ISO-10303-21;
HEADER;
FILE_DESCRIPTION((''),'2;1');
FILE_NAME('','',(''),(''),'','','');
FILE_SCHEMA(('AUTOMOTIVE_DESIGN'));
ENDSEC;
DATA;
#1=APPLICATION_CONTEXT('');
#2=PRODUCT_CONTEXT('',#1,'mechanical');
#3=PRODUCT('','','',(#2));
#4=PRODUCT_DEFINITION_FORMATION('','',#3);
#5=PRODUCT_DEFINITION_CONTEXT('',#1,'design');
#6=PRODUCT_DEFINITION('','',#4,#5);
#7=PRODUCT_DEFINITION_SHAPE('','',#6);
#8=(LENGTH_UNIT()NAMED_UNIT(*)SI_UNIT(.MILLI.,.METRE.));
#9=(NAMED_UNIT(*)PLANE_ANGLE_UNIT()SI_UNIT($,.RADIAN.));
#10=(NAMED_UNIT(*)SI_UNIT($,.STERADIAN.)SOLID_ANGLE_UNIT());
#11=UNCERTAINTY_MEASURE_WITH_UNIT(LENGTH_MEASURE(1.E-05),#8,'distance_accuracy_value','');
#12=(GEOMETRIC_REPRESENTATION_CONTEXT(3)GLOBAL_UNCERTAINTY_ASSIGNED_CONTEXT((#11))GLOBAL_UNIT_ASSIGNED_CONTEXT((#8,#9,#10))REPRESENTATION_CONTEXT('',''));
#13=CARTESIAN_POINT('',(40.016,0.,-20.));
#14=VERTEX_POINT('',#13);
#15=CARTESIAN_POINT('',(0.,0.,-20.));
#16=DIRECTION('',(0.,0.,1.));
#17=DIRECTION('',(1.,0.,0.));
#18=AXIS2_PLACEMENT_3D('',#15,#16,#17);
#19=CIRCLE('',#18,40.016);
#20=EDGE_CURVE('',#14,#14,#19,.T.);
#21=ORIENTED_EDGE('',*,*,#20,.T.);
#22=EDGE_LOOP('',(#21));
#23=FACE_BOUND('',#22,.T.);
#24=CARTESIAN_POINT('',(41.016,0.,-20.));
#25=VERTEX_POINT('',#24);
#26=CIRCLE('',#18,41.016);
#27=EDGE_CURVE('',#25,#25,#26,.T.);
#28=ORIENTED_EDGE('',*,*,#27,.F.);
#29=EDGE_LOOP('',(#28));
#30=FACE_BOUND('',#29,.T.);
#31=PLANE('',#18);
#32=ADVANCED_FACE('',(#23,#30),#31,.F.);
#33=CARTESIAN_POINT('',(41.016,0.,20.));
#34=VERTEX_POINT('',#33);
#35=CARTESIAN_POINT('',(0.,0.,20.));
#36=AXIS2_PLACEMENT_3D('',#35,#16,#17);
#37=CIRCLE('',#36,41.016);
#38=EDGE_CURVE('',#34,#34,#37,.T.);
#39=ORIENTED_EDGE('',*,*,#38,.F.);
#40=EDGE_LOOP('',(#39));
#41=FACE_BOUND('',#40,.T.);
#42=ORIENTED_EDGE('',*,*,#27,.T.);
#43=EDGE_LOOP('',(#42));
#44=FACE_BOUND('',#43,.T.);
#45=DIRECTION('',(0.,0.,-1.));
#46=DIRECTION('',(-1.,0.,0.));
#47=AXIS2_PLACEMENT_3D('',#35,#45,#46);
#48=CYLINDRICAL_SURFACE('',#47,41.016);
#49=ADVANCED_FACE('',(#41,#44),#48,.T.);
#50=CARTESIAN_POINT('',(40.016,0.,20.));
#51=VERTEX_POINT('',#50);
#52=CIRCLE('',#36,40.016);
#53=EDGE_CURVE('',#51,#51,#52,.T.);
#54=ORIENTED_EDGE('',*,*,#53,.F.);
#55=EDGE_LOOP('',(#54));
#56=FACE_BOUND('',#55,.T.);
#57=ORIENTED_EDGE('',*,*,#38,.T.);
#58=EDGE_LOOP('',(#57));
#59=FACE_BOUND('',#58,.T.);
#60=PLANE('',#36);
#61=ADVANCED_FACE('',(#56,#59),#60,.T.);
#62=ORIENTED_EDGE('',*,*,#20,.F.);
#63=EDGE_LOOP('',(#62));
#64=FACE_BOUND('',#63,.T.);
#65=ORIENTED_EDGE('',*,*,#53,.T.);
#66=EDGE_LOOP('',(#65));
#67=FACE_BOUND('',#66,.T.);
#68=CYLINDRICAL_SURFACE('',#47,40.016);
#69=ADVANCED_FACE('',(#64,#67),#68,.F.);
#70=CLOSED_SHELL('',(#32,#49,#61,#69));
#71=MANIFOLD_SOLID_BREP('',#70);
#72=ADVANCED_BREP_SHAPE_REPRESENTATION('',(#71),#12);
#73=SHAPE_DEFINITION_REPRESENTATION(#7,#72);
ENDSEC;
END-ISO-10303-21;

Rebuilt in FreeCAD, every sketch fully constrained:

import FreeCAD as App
import Part
import Sketcher
Q = App.Units.Quantity

doc = App.newDocument("Part")
body = doc.addObject("PartDesign::Body", "Body")

sketch1 = body.newObject("Sketcher::SketchObject", "Sketch")
sketch1.AttachmentSupport = (doc.getObject("XY_Plane"), [""])
sketch1.MapMode = "FlatFace"
sketch1.addGeometry([
    Part.Circle(App.Vector(0, 0, 0), App.Vector(0, 0, 1), 41),
    Part.Circle(App.Vector(0, 0, 0), App.Vector(0, 0, 1), 40),
], False)
sketch1.addConstraint([
    Sketcher.Constraint("Coincident", 0, 3, -1, 1),
    Sketcher.Constraint("Coincident", 1, 3, -1, 1),
    Sketcher.Constraint("Diameter", 0, Q("82.032 mm")),
    Sketcher.Constraint("Diameter", 1, Q("80.032 mm")),
])
pad1 = body.newObject("PartDesign::Pad", "Pad")
pad1.Profile = sketch1
pad1.Length = 40
pad1.Midplane = True

doc.recompute()
